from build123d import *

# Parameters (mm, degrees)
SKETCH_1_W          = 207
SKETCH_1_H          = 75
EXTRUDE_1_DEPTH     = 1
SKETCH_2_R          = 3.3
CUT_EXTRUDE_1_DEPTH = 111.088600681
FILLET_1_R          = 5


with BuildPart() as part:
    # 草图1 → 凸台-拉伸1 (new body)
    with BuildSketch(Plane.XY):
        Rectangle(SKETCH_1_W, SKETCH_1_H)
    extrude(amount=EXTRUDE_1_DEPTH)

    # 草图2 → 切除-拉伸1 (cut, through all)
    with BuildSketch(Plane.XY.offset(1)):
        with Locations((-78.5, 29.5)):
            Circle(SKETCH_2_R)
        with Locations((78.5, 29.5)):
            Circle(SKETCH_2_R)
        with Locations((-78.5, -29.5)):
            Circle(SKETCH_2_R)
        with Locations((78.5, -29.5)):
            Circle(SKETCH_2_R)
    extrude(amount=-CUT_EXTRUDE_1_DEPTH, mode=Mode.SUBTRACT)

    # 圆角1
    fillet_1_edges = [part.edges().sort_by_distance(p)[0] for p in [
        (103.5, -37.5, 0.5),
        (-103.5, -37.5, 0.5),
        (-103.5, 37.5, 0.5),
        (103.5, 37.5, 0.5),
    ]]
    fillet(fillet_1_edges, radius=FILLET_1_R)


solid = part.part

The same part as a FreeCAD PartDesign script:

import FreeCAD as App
import Part
import Sketcher
from FreeCAD import Vector
Q = App.Units.Quantity


def edges_at(feature, points):
    """Names of the edges that pass closest to the given points."""
    edges = feature.Shape.Edges
    near = lambda p: min(range(len(edges)), key=lambda i: edges[i].distToShape(Part.Vertex(*p))[0])
    return sorted({f"Edge{near(p) + 1}" for p in points})

doc = App.newDocument("Part")
body = doc.addObject("PartDesign::Body", "Body")

# Sketch on XY plane
sketch1 = doc.addObject("Sketcher::SketchObject", "Sketch")
body.addObject(sketch1)
sketch1.AttachmentSupport = (doc.XY_Plane, [""])
sketch1.MapMode = "FlatFace"
sketch1.addGeometry(Part.LineSegment(Vector(-104, 38, 0), Vector(-104, -38, 0)), False)
sketch1.addGeometry(Part.LineSegment(Vector(-104, -38, 0), Vector(104, -38, 0)), False)
sketch1.addGeometry(Part.LineSegment(Vector(104, -38, 0), Vector(104, 38, 0)), False)
sketch1.addGeometry(Part.LineSegment(Vector(104, 38, 0), Vector(-104, 38, 0)), False)
sketch1.addConstraint(Sketcher.Constraint("Coincident", 0, 2, 1, 1))
sketch1.addConstraint(Sketcher.Constraint("Coincident", 1, 2, 2, 1))
sketch1.addConstraint(Sketcher.Constraint("Coincident", 2, 2, 3, 1))
sketch1.addConstraint(Sketcher.Constraint("Coincident", 3, 2, 0, 1))
sketch1.addConstraint(Sketcher.Constraint("Vertical", 0))
sketch1.addConstraint(Sketcher.Constraint("Horizontal", 1))
sketch1.addConstraint(Sketcher.Constraint("Vertical", 2))
sketch1.addConstraint(Sketcher.Constraint("Horizontal", 3))
sketch1.addConstraint(Sketcher.Constraint("Symmetric", 0, 2, 2, 2, -1, 1))
sketch1.addConstraint(Sketcher.Constraint("DistanceX", 1, 1, 1, 2, Q("207 mm")))
sketch1.addConstraint(Sketcher.Constraint("DistanceY", 0, 2, 0, 1, Q("75 mm")))
pad1 = doc.addObject("PartDesign::Pad", "Pad")
body.addObject(pad1)
pad1.Profile = sketch1
pad1.Length = 1

# Sketch on XY plane
sketch2 = doc.addObject("Sketcher::SketchObject", "Sketch001")
body.addObject(sketch2)
sketch2.AttachmentSupport = (doc.XY_Plane, [""])
sketch2.MapMode = "FlatFace"
sketch2.AttachmentOffset = App.Placement(Vector(0, 0, 1), App.Rotation())
sketch2.addGeometry(Part.Circle(Vector(-78.5, 29.5, 0), Vector(0, 0, 1), 3.3), False)
sketch2.addGeometry(Part.Circle(Vector(78.5, 29.5, 0), Vector(0, 0, 1), 3.3), False)
sketch2.addGeometry(Part.Circle(Vector(-78.5, -29.5, 0), Vector(0, 0, 1), 3.3), False)
sketch2.addGeometry(Part.Circle(Vector(78.5, -29.5, 0), Vector(0, 0, 1), 3.3), False)
sketch2.addConstraint(Sketcher.Constraint("Equal", 0, 1))
sketch2.addConstraint(Sketcher.Constraint("Equal", 1, 2))
sketch2.addConstraint(Sketcher.Constraint("Equal", 2, 3))
sketch2.addConstraint(Sketcher.Constraint("Symmetric", 1, 3, 2, 3, -1, 1))
sketch2.addConstraint(Sketcher.Constraint("Symmetric", 0, 3, 3, 3, -1, 1))
sketch2.addConstraint(Sketcher.Constraint("Symmetric", 0, 3, 1, 3, -2))
sketch2.addConstraint(Sketcher.Constraint("Diameter", 0, Q("6.6 mm")))
sketch2.addConstraint(Sketcher.Constraint("DistanceX", 0, 3, 1, 3, Q("157 mm")))
sketch2.addConstraint(Sketcher.Constraint("DistanceY", 2, 3, 0, 3, Q("59 mm")))
pocket1 = doc.addObject("PartDesign::Pocket", "Pocket")
body.addObject(pocket1)
pocket1.Profile = sketch2
pocket1.Type = "ThroughAll"
doc.recompute()

fillet = doc.addObject("PartDesign::Fillet", "Fillet")
body.addObject(fillet)
fillet.Base = (pocket1, edges_at(pocket1, [
    (103.5, -37.5, 0.5),
    (-103.5, -37.5, 0.5),
    (-103.5, 37.5, 0.5),
    (103.5, 37.5, 0.5),
]))
fillet.Radius = 5

doc.recompute()
